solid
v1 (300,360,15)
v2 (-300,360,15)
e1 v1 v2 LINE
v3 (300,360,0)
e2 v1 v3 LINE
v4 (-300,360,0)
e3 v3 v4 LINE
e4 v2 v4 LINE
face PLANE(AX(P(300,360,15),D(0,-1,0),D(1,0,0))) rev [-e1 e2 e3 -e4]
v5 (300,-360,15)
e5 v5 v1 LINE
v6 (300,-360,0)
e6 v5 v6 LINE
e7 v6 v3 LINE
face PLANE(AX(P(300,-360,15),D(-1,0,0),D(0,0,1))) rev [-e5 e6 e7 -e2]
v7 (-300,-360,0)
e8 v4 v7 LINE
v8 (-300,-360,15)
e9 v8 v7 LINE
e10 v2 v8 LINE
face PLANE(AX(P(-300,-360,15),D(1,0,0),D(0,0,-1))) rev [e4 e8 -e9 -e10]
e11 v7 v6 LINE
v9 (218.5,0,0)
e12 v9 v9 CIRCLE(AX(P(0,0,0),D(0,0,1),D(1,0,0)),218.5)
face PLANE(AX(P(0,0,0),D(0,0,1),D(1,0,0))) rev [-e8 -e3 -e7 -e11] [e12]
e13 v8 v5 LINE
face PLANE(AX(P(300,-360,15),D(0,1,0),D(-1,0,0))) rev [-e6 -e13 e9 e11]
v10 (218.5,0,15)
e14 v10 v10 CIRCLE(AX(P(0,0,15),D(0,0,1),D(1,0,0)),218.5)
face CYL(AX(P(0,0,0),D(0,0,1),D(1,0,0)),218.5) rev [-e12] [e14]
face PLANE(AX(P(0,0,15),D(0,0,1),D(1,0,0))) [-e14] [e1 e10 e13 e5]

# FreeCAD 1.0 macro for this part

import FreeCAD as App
import Part
import Sketcher

V = App.Vector
Q = App.Units.Quantity


def add_polygon(sketch, points):
    """Adds a closed chain of lines whose ends are joined by coincident constraints."""
    first, n = sketch.GeometryCount, len(points)
    for a, b in zip(points, points[1:] + points[:1]):
        sketch.addGeometry(Part.LineSegment(App.Vector(*a, 0), App.Vector(*b, 0)), False)
    for i in range(n):
        sketch.addConstraint(Sketcher.Constraint("Coincident", first + i, 2, first + (i + 1) % n, 1))

doc = App.newDocument("Part")
body = doc.addObject("PartDesign::Body", "Body")

sketch1 = body.newObject("Sketcher::SketchObject", "Sketch")
sketch1.AttachmentSupport = (doc.getObject("XY_Plane"), [""])
sketch1.MapMode = "FlatFace"
add_polygon(sketch1, [(-300, 360), (-300, -360), (300, -360), (300, 360)])
sketch1.addConstraint([
    Sketcher.Constraint("Vertical", 0),
    Sketcher.Constraint("Horizontal", 1),
    Sketcher.Constraint("Vertical", 2),
    Sketcher.Constraint("Horizontal", 3),
    Sketcher.Constraint("Symmetric", 0, 2, 2, 2, -1, 1),
    Sketcher.Constraint("DistanceX", 1, 1, 1, 2, Q("600 mm")),
    Sketcher.Constraint("DistanceY", 0, 2, 0, 1, Q("720 mm")),
])
pad1 = body.newObject("PartDesign::Pad", "Pad")
pad1.Profile = sketch1
pad1.Length = 15

sketch2 = body.newObject("Sketcher::SketchObject", "Sketch001")
sketch2.AttachmentSupport = (doc.getObject("XY_Plane"), [""])
sketch2.MapMode = "FlatFace"
sketch2.AttachmentOffset = App.Placement(V(0, 0, 15), App.Rotation())
sketch2.addGeometry(Part.Circle(V(0, 0, 0), V(0, 0, 1), 218.5), False)
sketch2.addConstraint([
    Sketcher.Constraint("Coincident", 0, 3, -1, 1),
    Sketcher.Constraint("Diameter", 0, Q("437 mm")),
])
pocket1 = body.newObject("PartDesign::Pocket", "Pocket")
pocket1.Profile = sketch2
pocket1.Length = 15

doc.recompute()
